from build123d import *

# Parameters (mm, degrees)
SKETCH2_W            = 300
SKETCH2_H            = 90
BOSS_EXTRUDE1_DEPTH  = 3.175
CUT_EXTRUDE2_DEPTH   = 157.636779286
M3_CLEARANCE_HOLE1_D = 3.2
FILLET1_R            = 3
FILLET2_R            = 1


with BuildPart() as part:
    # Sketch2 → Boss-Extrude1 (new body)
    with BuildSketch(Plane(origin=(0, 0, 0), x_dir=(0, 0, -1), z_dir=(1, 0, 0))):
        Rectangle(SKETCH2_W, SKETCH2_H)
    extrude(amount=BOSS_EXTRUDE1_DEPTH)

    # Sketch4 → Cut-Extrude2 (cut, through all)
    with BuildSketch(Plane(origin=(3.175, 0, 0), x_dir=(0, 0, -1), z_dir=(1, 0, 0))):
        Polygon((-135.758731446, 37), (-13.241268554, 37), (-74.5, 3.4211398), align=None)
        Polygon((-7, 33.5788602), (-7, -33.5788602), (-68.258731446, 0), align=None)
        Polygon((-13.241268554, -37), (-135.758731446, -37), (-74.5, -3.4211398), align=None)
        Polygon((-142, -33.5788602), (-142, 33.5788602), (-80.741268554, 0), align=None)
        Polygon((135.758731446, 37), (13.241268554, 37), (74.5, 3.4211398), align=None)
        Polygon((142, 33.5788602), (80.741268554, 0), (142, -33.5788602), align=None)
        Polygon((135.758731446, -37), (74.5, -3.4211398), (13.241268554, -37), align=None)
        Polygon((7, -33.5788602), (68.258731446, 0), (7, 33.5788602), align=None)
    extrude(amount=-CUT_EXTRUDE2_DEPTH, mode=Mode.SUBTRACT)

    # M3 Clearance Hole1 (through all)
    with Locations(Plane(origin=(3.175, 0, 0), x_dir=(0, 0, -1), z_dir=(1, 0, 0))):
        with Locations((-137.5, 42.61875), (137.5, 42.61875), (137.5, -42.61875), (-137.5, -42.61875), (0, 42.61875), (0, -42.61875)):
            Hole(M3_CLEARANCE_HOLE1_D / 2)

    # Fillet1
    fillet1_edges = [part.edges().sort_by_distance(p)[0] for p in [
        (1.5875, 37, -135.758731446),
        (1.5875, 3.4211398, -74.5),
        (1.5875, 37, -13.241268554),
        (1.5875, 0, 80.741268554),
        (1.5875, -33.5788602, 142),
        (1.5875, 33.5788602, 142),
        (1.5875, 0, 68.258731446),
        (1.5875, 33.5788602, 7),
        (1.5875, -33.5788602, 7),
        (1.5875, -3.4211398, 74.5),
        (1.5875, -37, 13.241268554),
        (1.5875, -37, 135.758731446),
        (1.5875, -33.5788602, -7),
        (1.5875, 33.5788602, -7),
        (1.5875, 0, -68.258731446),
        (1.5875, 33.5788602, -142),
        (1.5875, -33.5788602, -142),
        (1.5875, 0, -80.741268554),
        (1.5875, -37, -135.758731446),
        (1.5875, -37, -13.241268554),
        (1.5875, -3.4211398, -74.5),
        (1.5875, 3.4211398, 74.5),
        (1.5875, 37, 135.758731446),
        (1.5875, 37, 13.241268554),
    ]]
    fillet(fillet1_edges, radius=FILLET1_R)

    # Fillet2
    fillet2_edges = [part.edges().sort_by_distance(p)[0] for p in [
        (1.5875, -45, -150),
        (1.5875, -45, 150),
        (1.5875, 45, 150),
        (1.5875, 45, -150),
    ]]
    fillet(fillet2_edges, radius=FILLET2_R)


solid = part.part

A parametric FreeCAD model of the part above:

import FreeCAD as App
import Part
import Sketcher
Q = App.Units.Quantity


def edges_at(feature, points):
    """Names of the edges that pass closest to the given points."""
    edges = feature.Shape.Edges
    near = lambda p: min(range(len(edges)), key=lambda i: edges[i].distToShape(Part.Vertex(*p))[0])
    return sorted({f"Edge{near(p) + 1}" for p in points})

doc = App.newDocument("Part")
body = doc.addObject("PartDesign::Body", "Body")

sketch1 = doc.addObject("Sketcher::SketchObject", "Sketch")
body.addObject(sketch1)
sketch1.AttachmentSupport = (doc.YZ_Plane, [""])
sketch1.MapMode = "FlatFace"
sketch1.addGeometry(Part.LineSegment(App.Vector(45, 150, 0), App.Vector(-45, 150, 0)), False)
sketch1.addGeometry(Part.LineSegment(App.Vector(-45, 150, 0), App.Vector(-45, -150, 0)), False)
sketch1.addGeometry(Part.LineSegment(App.Vector(-45, -150, 0), App.Vector(45, -150, 0)), False)
sketch1.addGeometry(Part.LineSegment(App.Vector(45, -150, 0), App.Vector(45, 150, 0)), False)
sketch1.addConstraint(Sketcher.Constraint("Coincident", 0, 2, 1, 1))
sketch1.addConstraint(Sketcher.Constraint("Coincident", 1, 2, 2, 1))
sketch1.addConstraint(Sketcher.Constraint("Coincident", 2, 2, 3, 1))
sketch1.addConstraint(Sketcher.Constraint("Coincident", 3, 2, 0, 1))
sketch1.addConstraint(Sketcher.Constraint("Horizontal", 0))
sketch1.addConstraint(Sketcher.Constraint("Vertical", 1))
sketch1.addConstraint(Sketcher.Constraint("Horizontal", 2))
sketch1.addConstraint(Sketcher.Constraint("Vertical", 3))
sketch1.addConstraint(Sketcher.Constraint("Symmetric", 0, 2, 2, 2, -1, 1))
sketch1.addConstraint(Sketcher.Constraint("DistanceX", 0, 2, 0, 1, Q("90 mm")))
sketch1.addConstraint(Sketcher.Constraint("DistanceY", 1, 2, 1, 1, Q("300 mm")))
pad1 = doc.addObject("PartDesign::Pad", "Pad")
body.addObject(pad1)
pad1.Profile = sketch1
pad1.Length = 3.175

sketch2 = doc.addObject("Sketcher::SketchObject", "Sketch001")
body.addObject(sketch2)
sketch2.AttachmentSupport = (doc.YZ_Plane, [""])
sketch2.MapMode = "FlatFace"
sketch2.AttachmentOffset = App.Placement(App.Vector(0, 0, 3.175), App.Rotation())
sketch2.addGeometry(Part.LineSegment(App.Vector(37, 13, 0), App.Vector(37, 136, 0)), False)
sketch2.addGeometry(Part.LineSegment(App.Vector(37, 136, 0), App.Vector(3, 74, 0)), False)
sketch2.addGeometry(Part.LineSegment(App.Vector(3, 74, 0), App.Vector(37, 13, 0)), False)
sketch2.addGeometry(Part.LineSegment(App.Vector(-34, 7, 0), App.Vector(34, 7, 0)), False)
sketch2.addGeometry(Part.LineSegment(App.Vector(34, 7, 0), App.Vector(0, 68, 0)), False)
sketch2.addGeometry(Part.LineSegment(App.Vector(0, 68, 0), App.Vector(-34, 7, 0)), False)
sketch2.addGeometry(Part.LineSegment(App.Vector(-37, 136, 0), App.Vector(-37, 13, 0)), False)
sketch2.addGeometry(Part.LineSegment(App.Vector(-37, 13, 0), App.Vector(-3, 74, 0)), False)
sketch2.addGeometry(Part.LineSegment(App.Vector(-3, 74, 0), App.Vector(-37, 136, 0)), False)
sketch2.addGeometry(Part.LineSegment(App.Vector(34, 142, 0), App.Vector(-34, 142, 0)), False)
sketch2.addGeometry(Part.LineSegment(App.Vector(-34, 142, 0), App.Vector(0, 81, 0)), False)
sketch2.addGeometry(Part.LineSegment(App.Vector(0, 81, 0), App.Vector(34, 142, 0)), False)
sketch2.addGeometry(Part.LineSegment(App.Vector(37, -136, 0), App.Vector(37, -13, 0)), False)
sketch2.addGeometry(Part.LineSegment(App.Vector(37, -13, 0), App.Vector(3, -74, 0)), False)
sketch2.addGeometry(Part.LineSegment(App.Vector(3, -74, 0), App.Vector(37, -136, 0)), False)
sketch2.addGeometry(Part.LineSegment(App.Vector(34, -142, 0), App.Vector(0, -81, 0)), False)
sketch2.addGeometry(Part.LineSegment(App.Vector(0, -81, 0), App.Vector(-34, -142, 0)), False)
sketch2.addGeometry(Part.LineSegment(App.Vector(-34, -142, 0), App.Vector(34, -142, 0)), False)
sketch2.addGeometry(Part.LineSegment(App.Vector(-37, -136, 0), App.Vector(-3, -74, 0)), False)
sketch2.addGeometry(Part.LineSegment(App.Vector(-3, -74, 0), App.Vector(-37, -13, 0)), False)
sketch2.addGeometry(Part.LineSegment(App.Vector(-37, -13, 0), App.Vector(-37, -136, 0)), False)
sketch2.addGeometry(Part.LineSegment(App.Vector(-34, -7, 0), App.Vector(0, -68, 0)), False)
sketch2.addGeometry(Part.LineSegment(App.Vector(0, -68, 0), App.Vector(34, -7, 0)), False)
sketch2.addGeometry(Part.LineSegment(App.Vector(34, -7, 0), App.Vector(-34, -7, 0)), False)
sketch2.addConstraint(Sketcher.Constraint("Coincident", 0, 2, 1, 1))
sketch2.addConstraint(Sketcher.Constraint("Coincident", 1, 2, 2, 1))
sketch2.addConstraint(Sketcher.Constraint("Coincident", 2, 2, 0, 1))
sketch2.addConstraint(Sketcher.Constraint("Coincident", 3, 2, 4, 1))
sketch2.addConstraint(Sketcher.Constraint("Coincident", 4, 2, 5, 1))
sketch2.addConstraint(Sketcher.Constraint("Coincident", 5, 2, 3, 1))
sketch2.addConstraint(Sketcher.Constraint("Coincident", 6, 2, 7, 1))
sketch2.addConstraint(Sketcher.Constraint("Coincident", 7, 2, 8, 1))
sketch2.addConstraint(Sketcher.Constraint("Coincident", 8, 2, 6, 1))
sketch2.addConstraint(Sketcher.Constraint("Coincident", 9, 2, 10, 1))
sketch2.addConstraint(Sketcher.Constraint("Coincident", 10, 2, 11, 1))
sketch2.addConstraint(Sketcher.Constraint("Coincident", 11, 2, 9, 1))
sketch2.addConstraint(Sketcher.Constraint("Coincident", 12, 2, 13, 1))
sketch2.addConstraint(Sketcher.Constraint("Coincident", 13, 2, 14, 1))
sketch2.addConstraint(Sketcher.Constraint("Coincident", 14, 2, 12, 1))
sketch2.addConstraint(Sketcher.Constraint("Coincident", 15, 2, 16, 1))
sketch2.addConstraint(Sketcher.Constraint("Coincident", 16, 2, 17, 1))
sketch2.addConstraint(Sketcher.Constraint("Coincident", 17, 2, 15, 1))
sketch2.addConstraint(Sketcher.Constraint("Coincident", 18, 2, 19, 1))
sketch2.addConstraint(Sketcher.Constraint("Coincident", 19, 2, 20, 1))
sketch2.addConstraint(Sketcher.Constraint("Coincident", 20, 2, 18, 1))
sketch2.addConstraint(Sketcher.Constraint("Coincident", 21, 2, 22, 1))
sketch2.addConstraint(Sketcher.Constraint("Coincident", 22, 2, 23, 1))
sketch2.addConstraint(Sketcher.Constraint("Coincident", 23, 2, 21, 1))
sketch2.addConstraint(Sketcher.Constraint("Vertical", 0))
sketch2.addConstraint(Sketcher.Constraint("Horizontal", 3))
sketch2.addConstraint(Sketcher.Constraint("Vertical", 6))
sketch2.addConstraint(Sketcher.Constraint("Horizontal", 9))
sketch2.addConstraint(Sketcher.Constraint("Vertical", 12))
sketch2.addConstraint(Sketcher.Constraint("Horizontal", 17))
sketch2.addConstraint(Sketcher.Constraint("Vertical", 20))
sketch2.addConstraint(Sketcher.Constraint("Horizontal", 23))
sketch2.addConstraint(Sketcher.Constraint("Symmetric", 6, 2, 12, 2, -1, 1))
sketch2.addConstraint(Sketcher.Constraint("Symmetric", 7, 2, 13, 2, -1, 1))
sketch2.addConstraint(Sketcher.Constraint("Symmetric", 10, 2, 15, 2, -1, 1))
sketch2.addConstraint(Sketcher.Constraint("Symmetric", 11, 2, 16, 2, -1, 1))
sketch2.addConstraint(Sketcher.Constraint("Symmetric", 1, 2, 18, 2, -1, 1))
sketch2.addConstraint(Sketcher.Constraint("Symmetric", 2, 2, 19, 2, -1, 1))
sketch2.addConstraint(Sketcher.Constraint("Symmetric", 4, 2, 21, 2, -1, 1))
sketch2.addConstraint(Sketcher.Constraint("Symmetric", 5, 2, 22, 2, -1, 1))
sketch2.addConstraint(Sketcher.Constraint("Symmetric", 2, 2, 6, 2, -2))
sketch2.addConstraint(Sketcher.Constraint("Symmetric", 1, 2, 7, 2, -2))
sketch2.addConstraint(Sketcher.Constraint("PointOnObject", 4, 2, -2))
sketch2.addConstraint(Sketcher.Constraint("PointOnObject", 10, 2, -2))
sketch2.addConstraint(Sketcher.Constraint("Parallel", 2, 4))
sketch2.addConstraint(Sketcher.Constraint("Parallel", 1, 5))
sketch2.addConstraint(Sketcher.Constraint("Parallel", 5, 7))
sketch2.addConstraint(Sketcher.Constraint("Parallel", 4, 8))
sketch2.addConstraint(Sketcher.Constraint("Parallel", 8, 10))
sketch2.addConstraint(Sketcher.Constraint("Parallel", 7, 11))
sketch2.addConstraint(Sketcher.Constraint("Parallel", 10, 14))
sketch2.addConstraint(Sketcher.Constraint("Parallel", 14, 15))
sketch2.addConstraint(Sketcher.Constraint("Parallel", 16, 18))
sketch2.addConstraint(Sketcher.Constraint("Parallel", 19, 21))
sketch2.addConstraint(Sketcher.Constraint("Vertical", 5, 2, 9, 2))
sketch2.addConstraint(Sketcher.Constraint("Equal", 2, 4))
sketch2.addConstraint(Sketcher.Constraint("DistanceX", -1, 1, 0, 2, Q("37 mm")))
sketch2.addConstraint(Sketcher.Constraint("DistanceY", -1, 1, 3, 2, Q("7 mm")))
sketch2.addConstraint(Sketcher.Constraint("DistanceY", -1, 1, 9, 2, Q("142 mm")))
sketch2.addConstraint(Sketcher.Constraint("DistanceY", 14, 2, 2, 2, Q("149 mm")))
sketch2.addConstraint(Sketcher.Constraint("DistanceX", 3, 1, 3, 2, Q("67.15772 mm")))
sketch2.addConstraint(Sketcher.Constraint("Distance", 1, Q("69.858228 mm")))
pocket1 = doc.addObject("PartDesign::Pocket", "Pocket")
body.addObject(pocket1)
pocket1.Profile = sketch2
pocket1.Type = "ThroughAll"

sketch3 = doc.addObject("Sketcher::SketchObject", "Sketch002")
body.addObject(sketch3)
sketch3.AttachmentSupport = (doc.YZ_Plane, [""])
sketch3.MapMode = "FlatFace"
sketch3.AttachmentOffset = App.Placement(App.Vector(0, 0, 3.175), App.Rotation())
sketch3.addGeometry(Part.Circle(App.Vector(42.6, 137.5, 0), App.Vector(0, 0, 1), 1.6), False)
sketch3.addGeometry(Part.Circle(App.Vector(42.6, -137.5, 0), App.Vector(0, 0, 1), 1.6), False)
sketch3.addGeometry(Part.Circle(App.Vector(-42.6, -137.5, 0), App.Vector(0, 0, 1), 1.6), False)
sketch3.addGeometry(Part.Circle(App.Vector(-42.6, 137.5, 0), App.Vector(0, 0, 1), 1.6), False)
sketch3.addGeometry(Part.Circle(App.Vector(42.6, 0, 0), App.Vector(0, 0, 1), 1.6), False)
sketch3.addGeometry(Part.Circle(App.Vector(-42.6, 0, 0), App.Vector(0, 0, 1), 1.6), False)
sketch3.addConstraint(Sketcher.Constraint("Equal", 0, 1))
sketch3.addConstraint(Sketcher.Constraint("Equal", 1, 2))
sketch3.addConstraint(Sketcher.Constraint("Equal", 2, 3))
sketch3.addConstraint(Sketcher.Constraint("Equal", 3, 4))
sketch3.addConstraint(Sketcher.Constraint("Equal", 4, 5))
sketch3.addConstraint(Sketcher.Constraint("Symmetric", 0, 3, 2, 3, -1, 1))
sketch3.addConstraint(Sketcher.Constraint("Symmetric", 1, 3, 3, 3, -1, 1))
sketch3.addConstraint(Sketcher.Constraint("Symmetric", 4, 3, 5, 3, -1, 1))
sketch3.addConstraint(Sketcher.Constraint("Symmetric", 1, 3, 2, 3, -2))
sketch3.addConstraint(Sketcher.Constraint("PointOnObject", 4, 3, -1))
sketch3.addConstraint(Sketcher.Constraint("Vertical", 1, 3, 4, 3))
sketch3.addConstraint(Sketcher.Constraint("Diameter", 0, Q("3.2 mm")))
sketch3.addConstraint(Sketcher.Constraint("DistanceY", 1, 3, 0, 3, Q("275 mm")))
sketch3.addConstraint(Sketcher.Constraint("DistanceX", 2, 3, 1, 3, Q("85.2375 mm")))
doc.recompute()
hole = doc.addObject("PartDesign::Hole", "Hole")
body.addObject(hole)
hole.Profile = sketch3
hole.ThreadType = "None"
hole.Diameter = 3.2
hole.DepthType = "ThroughAll"
doc.recompute()

fillet = doc.addObject("PartDesign::Fillet", "Fillet")
body.addObject(fillet)
fillet.Base = (hole, edges_at(hole, [
    (1.587, 37, -135.759),
    (1.587, 3.421, -74.5),
    (1.587, 37, -13.241),
    (1.587, 0, 80.741),
    (1.587, -33.579, 142),
    (1.587, 33.579, 142),
    (1.587, 0, 68.259),
    (1.587, 33.579, 7),
    (1.587, -33.579, 7),
    (1.587, -3.421, 74.5),
    (1.587, -37, 13.241),
    (1.587, -37, 135.759),
    (1.587, -33.579, -7),
    (1.587, 33.579, -7),
    (1.587, 0, -68.259),
    (1.587, 33.579, -142),
    (1.587, -33.579, -142),
    (1.587, 0, -80.741),
    (1.587, -37, -135.759),
    (1.587, -37, -13.241),
    (1.587, -3.421, -74.5),
    (1.587, 3.421, 74.5),
    (1.587, 37, 135.759),
    (1.587, 37, 13.241),
]))
fillet.Radius = 3
doc.recompute()

fillet2 = doc.addObject("PartDesign::Fillet", "Fillet001")
body.addObject(fillet2)
fillet2.Base = (fillet, edges_at(fillet, [
    (1.587, -45, -150),
    (1.587, -45, 150),
    (1.587, 45, 150),
    (1.587, 45, -150),
]))
fillet2.Radius = 1

doc.recompute()
